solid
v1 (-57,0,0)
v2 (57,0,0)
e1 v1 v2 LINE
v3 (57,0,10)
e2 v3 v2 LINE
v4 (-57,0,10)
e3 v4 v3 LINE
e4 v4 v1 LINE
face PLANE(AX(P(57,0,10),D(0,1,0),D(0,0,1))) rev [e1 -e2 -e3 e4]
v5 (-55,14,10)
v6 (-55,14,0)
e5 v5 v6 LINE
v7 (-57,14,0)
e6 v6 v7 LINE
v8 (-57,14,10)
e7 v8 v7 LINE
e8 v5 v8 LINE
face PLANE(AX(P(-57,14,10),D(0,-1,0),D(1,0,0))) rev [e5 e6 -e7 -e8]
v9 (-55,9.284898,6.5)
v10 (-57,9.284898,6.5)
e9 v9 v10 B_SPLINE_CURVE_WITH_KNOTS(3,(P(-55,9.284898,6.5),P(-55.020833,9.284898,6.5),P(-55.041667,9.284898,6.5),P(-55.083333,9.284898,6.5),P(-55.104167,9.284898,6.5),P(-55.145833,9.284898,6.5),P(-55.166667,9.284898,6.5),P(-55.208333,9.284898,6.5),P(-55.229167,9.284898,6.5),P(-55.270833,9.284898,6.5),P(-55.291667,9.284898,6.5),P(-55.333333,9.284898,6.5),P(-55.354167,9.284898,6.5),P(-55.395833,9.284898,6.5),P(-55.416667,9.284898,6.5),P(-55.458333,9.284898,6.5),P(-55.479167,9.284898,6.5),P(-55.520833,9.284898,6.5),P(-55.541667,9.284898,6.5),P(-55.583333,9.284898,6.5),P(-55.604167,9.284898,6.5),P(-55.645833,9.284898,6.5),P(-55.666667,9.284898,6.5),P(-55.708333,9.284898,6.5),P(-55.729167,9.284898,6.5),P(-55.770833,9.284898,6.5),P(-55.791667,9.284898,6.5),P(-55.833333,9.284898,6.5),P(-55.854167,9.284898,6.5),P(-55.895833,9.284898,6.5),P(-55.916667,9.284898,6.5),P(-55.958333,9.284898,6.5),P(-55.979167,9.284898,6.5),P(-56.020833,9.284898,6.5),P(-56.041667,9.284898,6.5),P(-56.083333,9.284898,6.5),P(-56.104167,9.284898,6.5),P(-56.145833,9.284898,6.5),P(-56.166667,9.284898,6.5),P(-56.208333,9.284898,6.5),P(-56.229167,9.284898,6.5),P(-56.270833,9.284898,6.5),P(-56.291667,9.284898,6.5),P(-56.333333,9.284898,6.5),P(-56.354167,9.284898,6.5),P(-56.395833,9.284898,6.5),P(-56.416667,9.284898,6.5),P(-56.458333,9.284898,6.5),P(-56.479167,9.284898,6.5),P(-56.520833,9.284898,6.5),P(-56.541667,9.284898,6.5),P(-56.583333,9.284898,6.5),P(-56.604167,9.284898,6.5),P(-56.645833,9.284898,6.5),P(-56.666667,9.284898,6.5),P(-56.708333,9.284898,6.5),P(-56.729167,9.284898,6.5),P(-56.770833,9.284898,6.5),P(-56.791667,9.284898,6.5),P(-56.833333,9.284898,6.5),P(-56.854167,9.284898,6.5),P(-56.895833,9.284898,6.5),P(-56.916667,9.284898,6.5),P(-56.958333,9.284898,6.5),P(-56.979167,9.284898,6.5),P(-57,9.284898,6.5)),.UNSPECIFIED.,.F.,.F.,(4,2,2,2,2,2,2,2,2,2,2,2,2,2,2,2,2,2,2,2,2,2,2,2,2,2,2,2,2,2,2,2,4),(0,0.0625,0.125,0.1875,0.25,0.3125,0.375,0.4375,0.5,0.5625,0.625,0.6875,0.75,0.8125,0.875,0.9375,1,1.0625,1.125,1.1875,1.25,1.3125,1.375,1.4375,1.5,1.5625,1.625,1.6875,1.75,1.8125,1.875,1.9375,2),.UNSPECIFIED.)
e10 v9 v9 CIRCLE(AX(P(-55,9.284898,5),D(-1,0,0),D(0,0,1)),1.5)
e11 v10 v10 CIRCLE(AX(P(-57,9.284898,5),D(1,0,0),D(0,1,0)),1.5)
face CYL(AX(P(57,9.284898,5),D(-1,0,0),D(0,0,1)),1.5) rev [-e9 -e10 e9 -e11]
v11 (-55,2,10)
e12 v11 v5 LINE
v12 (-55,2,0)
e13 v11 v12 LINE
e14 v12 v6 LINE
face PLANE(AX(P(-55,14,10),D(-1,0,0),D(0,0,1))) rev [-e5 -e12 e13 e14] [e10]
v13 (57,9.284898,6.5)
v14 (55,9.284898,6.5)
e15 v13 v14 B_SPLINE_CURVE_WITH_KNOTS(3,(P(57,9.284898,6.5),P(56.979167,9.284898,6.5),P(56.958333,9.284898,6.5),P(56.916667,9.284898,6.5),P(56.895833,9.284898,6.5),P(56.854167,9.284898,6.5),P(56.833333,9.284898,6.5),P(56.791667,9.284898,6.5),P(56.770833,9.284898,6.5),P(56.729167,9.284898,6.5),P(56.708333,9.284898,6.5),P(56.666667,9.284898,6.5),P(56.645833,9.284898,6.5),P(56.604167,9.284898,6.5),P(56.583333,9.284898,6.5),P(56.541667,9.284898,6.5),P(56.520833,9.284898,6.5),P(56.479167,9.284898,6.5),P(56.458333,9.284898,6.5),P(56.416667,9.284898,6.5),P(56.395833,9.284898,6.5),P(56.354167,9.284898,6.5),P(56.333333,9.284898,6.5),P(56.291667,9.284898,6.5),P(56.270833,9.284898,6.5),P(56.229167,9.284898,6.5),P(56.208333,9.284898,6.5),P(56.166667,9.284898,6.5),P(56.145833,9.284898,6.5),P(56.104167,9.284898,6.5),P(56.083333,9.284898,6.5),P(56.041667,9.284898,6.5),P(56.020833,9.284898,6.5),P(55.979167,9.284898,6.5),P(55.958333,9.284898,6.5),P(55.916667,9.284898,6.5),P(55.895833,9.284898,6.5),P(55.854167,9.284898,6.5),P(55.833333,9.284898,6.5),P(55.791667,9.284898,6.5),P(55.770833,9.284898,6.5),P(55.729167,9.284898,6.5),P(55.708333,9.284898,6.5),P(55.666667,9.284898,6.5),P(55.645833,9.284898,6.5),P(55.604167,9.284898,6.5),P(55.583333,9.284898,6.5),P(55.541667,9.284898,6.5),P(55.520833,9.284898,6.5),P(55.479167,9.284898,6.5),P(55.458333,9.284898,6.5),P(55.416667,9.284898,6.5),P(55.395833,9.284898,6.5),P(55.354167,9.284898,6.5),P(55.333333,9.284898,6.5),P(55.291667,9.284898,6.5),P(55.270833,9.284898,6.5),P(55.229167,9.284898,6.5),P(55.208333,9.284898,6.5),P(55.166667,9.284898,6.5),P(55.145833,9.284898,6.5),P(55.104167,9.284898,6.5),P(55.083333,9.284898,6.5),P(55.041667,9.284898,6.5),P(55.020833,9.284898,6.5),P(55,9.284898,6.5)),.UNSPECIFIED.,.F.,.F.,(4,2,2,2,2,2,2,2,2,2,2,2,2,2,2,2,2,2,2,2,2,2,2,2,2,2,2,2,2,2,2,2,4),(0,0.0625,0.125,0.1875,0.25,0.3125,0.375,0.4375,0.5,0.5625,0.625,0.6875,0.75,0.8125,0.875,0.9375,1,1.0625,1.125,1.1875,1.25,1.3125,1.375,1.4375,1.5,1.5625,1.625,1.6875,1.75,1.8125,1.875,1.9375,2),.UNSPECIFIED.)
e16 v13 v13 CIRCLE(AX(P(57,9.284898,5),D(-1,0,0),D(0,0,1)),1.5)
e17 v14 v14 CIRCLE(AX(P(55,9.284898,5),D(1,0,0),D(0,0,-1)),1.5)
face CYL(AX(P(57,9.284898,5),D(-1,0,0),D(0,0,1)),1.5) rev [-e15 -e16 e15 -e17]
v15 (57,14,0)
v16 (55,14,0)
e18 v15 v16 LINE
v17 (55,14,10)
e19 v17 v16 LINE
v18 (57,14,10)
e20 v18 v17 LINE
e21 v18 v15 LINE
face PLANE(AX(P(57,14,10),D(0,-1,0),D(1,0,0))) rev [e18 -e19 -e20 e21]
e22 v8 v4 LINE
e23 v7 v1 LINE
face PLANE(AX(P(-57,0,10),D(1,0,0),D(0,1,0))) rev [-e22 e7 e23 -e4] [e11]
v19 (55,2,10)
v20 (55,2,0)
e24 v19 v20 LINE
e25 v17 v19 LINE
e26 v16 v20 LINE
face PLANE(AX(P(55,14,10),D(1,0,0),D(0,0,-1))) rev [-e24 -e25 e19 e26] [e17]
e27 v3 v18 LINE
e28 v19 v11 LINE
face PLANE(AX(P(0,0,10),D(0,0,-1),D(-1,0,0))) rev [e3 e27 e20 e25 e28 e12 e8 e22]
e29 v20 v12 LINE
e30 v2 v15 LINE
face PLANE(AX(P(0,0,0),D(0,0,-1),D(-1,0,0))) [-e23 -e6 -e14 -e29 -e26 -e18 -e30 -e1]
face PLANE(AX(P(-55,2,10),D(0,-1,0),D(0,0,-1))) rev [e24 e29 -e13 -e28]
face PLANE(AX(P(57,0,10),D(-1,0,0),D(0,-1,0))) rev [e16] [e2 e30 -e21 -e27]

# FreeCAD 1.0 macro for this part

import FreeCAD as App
import Part
import Sketcher
from FreeCAD import Vector

doc = App.newDocument("Part")
params = doc.addObject("Spreadsheet::Sheet", "Params")
for row, (alias, value) in enumerate([
    ("sketch1_width", "114 mm"),
    ("sketch1_width2", "2 mm"),
    ("sketch1_height", "14 mm"),
    ("sketch1_height2", "12 mm"),
    ("pad1_length", "10 mm"),
    ("sketch2_diameter", "3 mm"),
], start=1):
    params.set(f"A{row}", alias)
    params.set(f"B{row}", "=" + value)
    params.setAlias(f"B{row}", alias)

body = doc.addObject("PartDesign::Body", "Body")

sketch1 = body.newObject("Sketcher::SketchObject", "Sketch")
sketch1.AttachmentSupport = (doc.getObject("XY_Plane"), [""])
sketch1.MapMode = "FlatFace"
sketch1.addGeometry([
    Part.LineSegment(Vector(-57, 0, 0), Vector(57, 0, 0)),
    Part.LineSegment(Vector(57, 0, 0), Vector(57, 14, 0)),
    Part.LineSegment(Vector(57, 14, 0), Vector(55, 14, 0)),
    Part.LineSegment(Vector(55, 14, 0), Vector(55, 2, 0)),
    Part.LineSegment(Vector(55, 2, 0), Vector(-55, 2, 0)),
    Part.LineSegment(Vector(-55, 2, 0), Vector(-55, 14, 0)),
    Part.LineSegment(Vector(-55, 14, 0), Vector(-57, 14, 0)),
    Part.LineSegment(Vector(-57, 14, 0), Vector(-57, 0, 0)),
], False)
sketch1.addConstraint([
    Sketcher.Constraint("Coincident", 0, 2, 1, 1),
    Sketcher.Constraint("Coincident", 1, 2, 2, 1),
    Sketcher.Constraint("Coincident", 2, 2, 3, 1),
    Sketcher.Constraint("Coincident", 3, 2, 4, 1),
    Sketcher.Constraint("Coincident", 4, 2, 5, 1),
    Sketcher.Constraint("Coincident", 5, 2, 6, 1),
    Sketcher.Constraint("Coincident", 6, 2, 7, 1),
    Sketcher.Constraint("Coincident", 7, 2, 0, 1),
    Sketcher.Constraint("Horizontal", 0),
    Sketcher.Constraint("Vertical", 1),
    Sketcher.Constraint("Horizontal", 2),
    Sketcher.Constraint("Vertical", 3),
    Sketcher.Constraint("Horizontal", 4),
    Sketcher.Constraint("Vertical", 5),
    Sketcher.Constraint("Horizontal", 6),
    Sketcher.Constraint("Vertical", 7),
    Sketcher.Constraint("Symmetric", 0, 2, 7, 2, -1, 1),
    Sketcher.Constraint("Symmetric", 2, 2, 5, 2, -2),
    Sketcher.Constraint("DistanceX", 0, 1, 0, 2, 114.0),
    Sketcher.Constraint("DistanceX", 2, 2, 2, 1, 2.0),
    Sketcher.Constraint("DistanceY", 1, 1, 1, 2, 14.0),
    Sketcher.Constraint("DistanceY", 3, 2, 3, 1, 12.0),
])
sketch1.setExpression("Constraints[18]", "Params.sketch1_width")
sketch1.setExpression("Constraints[19]", "Params.sketch1_width2")
sketch1.setExpression("Constraints[20]", "Params.sketch1_height")
sketch1.setExpression("Constraints[21]", "Params.sketch1_height2")
pad1 = body.newObject("PartDesign::Pad", "Pad")
pad1.Profile = sketch1
pad1.setExpression("Length", "Params.pad1_length")

sketch2 = body.newObject("Sketcher::SketchObject", "Sketch001")
sketch2.AttachmentSupport = (doc.getObject("YZ_Plane"), [""])
sketch2.MapMode = "FlatFace"
sketch2.AttachmentOffset = App.Placement(Vector(0, 0, -57), App.Rotation())
sketch2.addGeometry(Part.Circle(Vector(9.3, 5, 0), Vector(0, 0, 1), 1.5), False)
sketch2.addConstraint([
    Sketcher.Constraint("Diameter", 0, 3.0),
    Sketcher.Constraint("DistanceY", -1, 1, 0, 3, 5.0),
    Sketcher.Constraint("DistanceX", -1, 1, 0, 3, 9.284898),
])
sketch2.setExpression("Constraints[0]", "Params.sketch2_diameter")
pocket1 = body.newObject("PartDesign::Pocket", "Pocket")
pocket1.Profile = sketch2
pocket1.Type = "ThroughAll"
pocket1.Midplane = True

doc.recompute()
